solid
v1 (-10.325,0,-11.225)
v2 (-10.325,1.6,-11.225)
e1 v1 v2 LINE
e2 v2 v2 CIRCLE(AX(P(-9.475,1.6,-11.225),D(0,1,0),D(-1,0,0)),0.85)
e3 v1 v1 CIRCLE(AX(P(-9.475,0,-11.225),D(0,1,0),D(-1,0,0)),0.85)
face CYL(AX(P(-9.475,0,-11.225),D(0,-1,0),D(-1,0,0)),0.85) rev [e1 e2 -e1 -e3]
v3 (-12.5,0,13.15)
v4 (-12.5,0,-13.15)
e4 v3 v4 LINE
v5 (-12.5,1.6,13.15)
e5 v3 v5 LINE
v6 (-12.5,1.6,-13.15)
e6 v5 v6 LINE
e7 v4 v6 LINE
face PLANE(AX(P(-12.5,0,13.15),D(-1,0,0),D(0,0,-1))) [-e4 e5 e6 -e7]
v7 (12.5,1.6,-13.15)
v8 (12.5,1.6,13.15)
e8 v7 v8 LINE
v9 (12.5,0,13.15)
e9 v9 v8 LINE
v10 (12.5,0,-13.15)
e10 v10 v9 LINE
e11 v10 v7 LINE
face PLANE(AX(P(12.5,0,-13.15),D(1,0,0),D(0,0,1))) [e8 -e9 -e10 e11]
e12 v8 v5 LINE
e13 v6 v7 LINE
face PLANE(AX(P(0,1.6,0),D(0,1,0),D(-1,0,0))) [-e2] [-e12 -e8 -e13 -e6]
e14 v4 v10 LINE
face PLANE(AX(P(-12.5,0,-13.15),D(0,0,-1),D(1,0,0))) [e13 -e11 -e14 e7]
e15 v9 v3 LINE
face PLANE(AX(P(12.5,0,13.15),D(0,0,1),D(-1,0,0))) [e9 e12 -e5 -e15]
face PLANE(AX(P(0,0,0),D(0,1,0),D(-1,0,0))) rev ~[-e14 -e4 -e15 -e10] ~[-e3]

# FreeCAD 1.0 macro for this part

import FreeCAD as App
import Part
import Sketcher
from FreeCAD import Vector
Q = App.Units.Quantity

doc = App.newDocument("Part")
params = doc.addObject("Spreadsheet::Sheet", "Params")
for row, (alias, value) in enumerate([
    ("sketch1_diameter", "1.7 mm"),
    ("sketch1_width", "25 mm"),
    ("sketch1_height", "26.3 mm"),
    ("pad1_length", "1.6 mm"),
], start=1):
    params.set(f"A{row}", alias)
    params.set(f"B{row}", "=" + value)
    params.setAlias(f"B{row}", alias)

body = doc.addObject("PartDesign::Body", "Body")

sketch1 = doc.addObject("Sketcher::SketchObject", "Sketch")
body.addObject(sketch1)
sketch1.AttachmentSupport = (doc.XZ_Plane, [""])
sketch1.MapMode = "FlatFace"
sketch1.addGeometry([
    Part.LineSegment(Vector(-12.5, 13.2, 0), Vector(12.5, 13.2, 0)),
    Part.LineSegment(Vector(12.5, 13.2, 0), Vector(12.5, -13.2, 0)),
    Part.LineSegment(Vector(12.5, -13.2, 0), Vector(-12.5, -13.2, 0)),
    Part.LineSegment(Vector(-12.5, -13.2, 0), Vector(-12.5, 13.2, 0)),
    Part.Circle(Vector(-9.5, -11.2, 0), Vector(0, 0, 1), 0.8),
], False)
sketch1.addConstraint([
    Sketcher.Constraint("Coincident", 0, 2, 1, 1),
    Sketcher.Constraint("Coincident", 1, 2, 2, 1),
    Sketcher.Constraint("Coincident", 2, 2, 3, 1),
    Sketcher.Constraint("Coincident", 3, 2, 0, 1),
    Sketcher.Constraint("Horizontal", 0),
    Sketcher.Constraint("Vertical", 1),
    Sketcher.Constraint("Horizontal", 2),
    Sketcher.Constraint("Vertical", 3),
    Sketcher.Constraint("Symmetric", 0, 2, 2, 2, -1, 1),
    Sketcher.Constraint("Diameter", 4, Q("1.7 mm")),
    Sketcher.Constraint("DistanceX", 0, 1, 0, 2, Q("25 mm")),
    Sketcher.Constraint("DistanceY", 1, 2, 1, 1, Q("26.3 mm")),
    Sketcher.Constraint("DistanceX", 4, 3, -1, 1, Q("9.475 mm")),
    Sketcher.Constraint("DistanceY", 4, 3, -1, 1, Q("11.225 mm")),
])
sketch1.setExpression("Constraints[9]", "Params.sketch1_diameter")
sketch1.setExpression("Constraints[10]", "Params.sketch1_width")
sketch1.setExpression("Constraints[11]", "Params.sketch1_height")
pad1 = doc.addObject("PartDesign::Pad", "Pad")
body.addObject(pad1)
pad1.Profile = sketch1
pad1.setExpression("Length", "Params.pad1_length")
pad1.Reversed = True

doc.recompute()
